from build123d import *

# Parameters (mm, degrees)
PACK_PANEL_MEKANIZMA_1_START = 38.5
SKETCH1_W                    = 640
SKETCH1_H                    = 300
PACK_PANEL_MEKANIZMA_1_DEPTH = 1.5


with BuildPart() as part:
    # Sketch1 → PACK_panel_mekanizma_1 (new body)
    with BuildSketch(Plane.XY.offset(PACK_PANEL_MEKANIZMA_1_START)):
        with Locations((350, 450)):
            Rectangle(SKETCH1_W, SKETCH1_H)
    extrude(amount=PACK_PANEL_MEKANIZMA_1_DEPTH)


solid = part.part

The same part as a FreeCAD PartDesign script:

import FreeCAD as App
import Part
import Sketcher

V = App.Vector
Q = App.Units.Quantity

doc = App.newDocument("Part")
body = doc.addObject("PartDesign::Body", "Body")

sketch1 = body.newObject("Sketcher::SketchObject", "Sketch")
sketch1.AttachmentSupport = (doc.getObject("XY_Plane"), [""])
sketch1.MapMode = "FlatFace"
sketch1.AttachmentOffset = App.Placement(V(0, 0, 38.5), App.Rotation())
sketch1.addGeometry([
    Part.LineSegment(V(30, 600, 0), V(30, 300, 0)),
    Part.LineSegment(V(30, 300, 0), V(670, 300, 0)),
    Part.LineSegment(V(670, 300, 0), V(670, 600, 0)),
    Part.LineSegment(V(670, 600, 0), V(30, 600, 0)),
], False)
sketch1.addConstraint([
    Sketcher.Constraint("Coincident", 0, 2, 1, 1),
    Sketcher.Constraint("Coincident", 1, 2, 2, 1),
    Sketcher.Constraint("Coincident", 2, 2, 3, 1),
    Sketcher.Constraint("Coincident", 3, 2, 0, 1),
    Sketcher.Constraint("Vertical", 0),
    Sketcher.Constraint("Horizontal", 1),
    Sketcher.Constraint("Vertical", 2),
    Sketcher.Constraint("Horizontal", 3),
    Sketcher.Constraint("DistanceX", 1, 1, 1, 2, Q("640 mm")),
    Sketcher.Constraint("DistanceY", 0, 2, 0, 1, Q("300 mm")),
    Sketcher.Constraint("DistanceX", -1, 1, 0, 2, Q("30 mm")),
    Sketcher.Constraint("DistanceY", -1, 1, 0, 2, Q("300 mm")),
])
pad1 = body.newObject("PartDesign::Pad", "Pad")
pad1.Profile = sketch1
pad1.Length = 1.5

doc.recompute()
